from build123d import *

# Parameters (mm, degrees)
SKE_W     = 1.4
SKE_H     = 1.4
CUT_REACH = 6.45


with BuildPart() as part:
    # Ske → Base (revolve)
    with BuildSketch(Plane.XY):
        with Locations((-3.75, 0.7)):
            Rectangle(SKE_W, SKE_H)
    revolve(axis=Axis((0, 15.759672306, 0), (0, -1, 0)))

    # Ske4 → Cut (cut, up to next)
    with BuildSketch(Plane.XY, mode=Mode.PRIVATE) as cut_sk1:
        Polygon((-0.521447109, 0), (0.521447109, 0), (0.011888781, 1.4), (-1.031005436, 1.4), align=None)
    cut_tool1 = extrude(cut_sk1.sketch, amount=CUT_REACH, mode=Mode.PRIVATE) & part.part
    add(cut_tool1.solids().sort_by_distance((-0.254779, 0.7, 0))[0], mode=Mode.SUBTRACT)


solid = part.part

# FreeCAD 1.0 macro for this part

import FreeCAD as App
import Part
import Sketcher

V = App.Vector
Q = App.Units.Quantity

doc = App.newDocument("Part")
body = doc.addObject("PartDesign::Body", "Body")

# Sketch on XY plane
sketch1 = body.newObject("Sketcher::SketchObject", "Sketch")
sketch1.AttachmentSupport = (doc.getObject("XY_Plane"), [""])
sketch1.MapMode = "FlatFace"
sketch1.addGeometry([
    Part.LineSegment(V(-4.5, 1.4, 0), V(-4.5, 0, 0)),
    Part.LineSegment(V(-4.5, 0, 0), V(-3, 0, 0)),
    Part.LineSegment(V(-3, 0, 0), V(-3, 1.4, 0)),
    Part.LineSegment(V(-3, 1.4, 0), V(-4.5, 1.4, 0)),
], False)
sketch1.addConstraint([
    Sketcher.Constraint("Coincident", 0, 2, 1, 1),
    Sketcher.Constraint("Coincident", 1, 2, 2, 1),
    Sketcher.Constraint("Coincident", 2, 2, 3, 1),
    Sketcher.Constraint("Coincident", 3, 2, 0, 1),
    Sketcher.Constraint("Vertical", 0),
    Sketcher.Constraint("Horizontal", 1),
    Sketcher.Constraint("Vertical", 2),
    Sketcher.Constraint("Horizontal", 3),
    Sketcher.Constraint("PointOnObject", 0, 2, -1),
    Sketcher.Constraint("Equal", 3, 0),
    Sketcher.Constraint("DistanceX", 1, 1, 1, 2, 1.4),
    Sketcher.Constraint("DistanceX", 0, 2, -1, 1, 4.45),
])
revolution = body.newObject("PartDesign::Revolution", "Revolution")
revolution.Profile = sketch1
revolution.ReferenceAxis = (sketch1, ["V_Axis"])
revolution.Angle = 360

# Sketch on XY plane
sketch2 = body.newObject("Sketcher::SketchObject", "Sketch001")
sketch2.AttachmentSupport = (doc.getObject("XY_Plane"), [""])
sketch2.MapMode = "FlatFace"
sketch2.addGeometry([
    Part.LineSegment(V(-0.5, 0, 0), V(0.5, 0, 0)),
    Part.LineSegment(V(0.5, 0, 0), V(0, 1.4, 0)),
    Part.LineSegment(V(0, 1.4, 0), V(-1, 1.4, 0)),
    Part.LineSegment(V(-1, 1.4, 0), V(-0.5, 0, 0)),
], False)
sketch2.addConstraint([
    Sketcher.Constraint("Coincident", 0, 2, 1, 1),
    Sketcher.Constraint("Coincident", 1, 2, 2, 1),
    Sketcher.Constraint("Coincident", 2, 2, 3, 1),
    Sketcher.Constraint("Coincident", 3, 2, 0, 1),
    Sketcher.Constraint("Horizontal", 0),
    Sketcher.Constraint("Horizontal", 2),
    Sketcher.Constraint("Symmetric", 0, 2, 3, 2, -1, 1),
    Sketcher.Constraint("Parallel", 1, 3),
    Sketcher.Constraint("Angle", 1, Q("110 deg")),
    Sketcher.Constraint("DistanceY", -1, 1, 1, 2, 1.4),
    Sketcher.Constraint("DistanceX", 0, 1, 0, 2, 1.042894),
])
pocket1 = body.newObject("PartDesign::Pocket", "Pocket")
pocket1.Profile = sketch2
pocket1.Length = 4.449984
pocket1.Reversed = True

doc.recompute()
